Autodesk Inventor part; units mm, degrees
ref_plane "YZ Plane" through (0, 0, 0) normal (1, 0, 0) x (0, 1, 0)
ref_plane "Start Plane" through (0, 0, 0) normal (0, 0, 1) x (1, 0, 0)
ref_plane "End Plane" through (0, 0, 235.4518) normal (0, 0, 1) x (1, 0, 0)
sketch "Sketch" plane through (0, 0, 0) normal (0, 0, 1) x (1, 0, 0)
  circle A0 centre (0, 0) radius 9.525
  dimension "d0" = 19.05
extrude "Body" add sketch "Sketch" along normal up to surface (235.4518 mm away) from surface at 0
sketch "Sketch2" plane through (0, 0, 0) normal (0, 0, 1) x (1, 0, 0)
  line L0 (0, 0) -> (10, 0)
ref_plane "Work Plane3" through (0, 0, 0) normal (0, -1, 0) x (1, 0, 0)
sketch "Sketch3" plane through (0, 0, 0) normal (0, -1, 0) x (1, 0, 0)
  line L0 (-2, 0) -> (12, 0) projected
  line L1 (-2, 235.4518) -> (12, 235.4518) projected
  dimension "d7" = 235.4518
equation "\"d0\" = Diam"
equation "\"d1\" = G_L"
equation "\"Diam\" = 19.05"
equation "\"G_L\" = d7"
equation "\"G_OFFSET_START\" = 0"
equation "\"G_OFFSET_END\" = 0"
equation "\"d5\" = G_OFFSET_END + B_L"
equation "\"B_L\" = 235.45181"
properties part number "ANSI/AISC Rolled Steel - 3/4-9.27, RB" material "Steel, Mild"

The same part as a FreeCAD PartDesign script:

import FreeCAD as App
import Part
import Sketcher

V = App.Vector
Q = App.Units.Quantity

doc = App.newDocument("Part")
body = doc.addObject("PartDesign::Body", "Body")

sketch1 = body.newObject("Sketcher::SketchObject", "Sketch")
sketch1.AttachmentSupport = (doc.getObject("XY_Plane"), [""])
sketch1.MapMode = "FlatFace"
sketch1.addGeometry(Part.Circle(V(0, 0, 0), V(0, 0, 1), 9.525), False)
sketch1.addConstraint([
    Sketcher.Constraint("Coincident", 0, 3, -1, 1),
    Sketcher.Constraint("Diameter", 0, Q("0.75 in")),
])
pad1 = body.newObject("PartDesign::Pad", "Pad")
pad1.Profile = sketch1
pad1.Length = 235.4518

doc.recompute()
